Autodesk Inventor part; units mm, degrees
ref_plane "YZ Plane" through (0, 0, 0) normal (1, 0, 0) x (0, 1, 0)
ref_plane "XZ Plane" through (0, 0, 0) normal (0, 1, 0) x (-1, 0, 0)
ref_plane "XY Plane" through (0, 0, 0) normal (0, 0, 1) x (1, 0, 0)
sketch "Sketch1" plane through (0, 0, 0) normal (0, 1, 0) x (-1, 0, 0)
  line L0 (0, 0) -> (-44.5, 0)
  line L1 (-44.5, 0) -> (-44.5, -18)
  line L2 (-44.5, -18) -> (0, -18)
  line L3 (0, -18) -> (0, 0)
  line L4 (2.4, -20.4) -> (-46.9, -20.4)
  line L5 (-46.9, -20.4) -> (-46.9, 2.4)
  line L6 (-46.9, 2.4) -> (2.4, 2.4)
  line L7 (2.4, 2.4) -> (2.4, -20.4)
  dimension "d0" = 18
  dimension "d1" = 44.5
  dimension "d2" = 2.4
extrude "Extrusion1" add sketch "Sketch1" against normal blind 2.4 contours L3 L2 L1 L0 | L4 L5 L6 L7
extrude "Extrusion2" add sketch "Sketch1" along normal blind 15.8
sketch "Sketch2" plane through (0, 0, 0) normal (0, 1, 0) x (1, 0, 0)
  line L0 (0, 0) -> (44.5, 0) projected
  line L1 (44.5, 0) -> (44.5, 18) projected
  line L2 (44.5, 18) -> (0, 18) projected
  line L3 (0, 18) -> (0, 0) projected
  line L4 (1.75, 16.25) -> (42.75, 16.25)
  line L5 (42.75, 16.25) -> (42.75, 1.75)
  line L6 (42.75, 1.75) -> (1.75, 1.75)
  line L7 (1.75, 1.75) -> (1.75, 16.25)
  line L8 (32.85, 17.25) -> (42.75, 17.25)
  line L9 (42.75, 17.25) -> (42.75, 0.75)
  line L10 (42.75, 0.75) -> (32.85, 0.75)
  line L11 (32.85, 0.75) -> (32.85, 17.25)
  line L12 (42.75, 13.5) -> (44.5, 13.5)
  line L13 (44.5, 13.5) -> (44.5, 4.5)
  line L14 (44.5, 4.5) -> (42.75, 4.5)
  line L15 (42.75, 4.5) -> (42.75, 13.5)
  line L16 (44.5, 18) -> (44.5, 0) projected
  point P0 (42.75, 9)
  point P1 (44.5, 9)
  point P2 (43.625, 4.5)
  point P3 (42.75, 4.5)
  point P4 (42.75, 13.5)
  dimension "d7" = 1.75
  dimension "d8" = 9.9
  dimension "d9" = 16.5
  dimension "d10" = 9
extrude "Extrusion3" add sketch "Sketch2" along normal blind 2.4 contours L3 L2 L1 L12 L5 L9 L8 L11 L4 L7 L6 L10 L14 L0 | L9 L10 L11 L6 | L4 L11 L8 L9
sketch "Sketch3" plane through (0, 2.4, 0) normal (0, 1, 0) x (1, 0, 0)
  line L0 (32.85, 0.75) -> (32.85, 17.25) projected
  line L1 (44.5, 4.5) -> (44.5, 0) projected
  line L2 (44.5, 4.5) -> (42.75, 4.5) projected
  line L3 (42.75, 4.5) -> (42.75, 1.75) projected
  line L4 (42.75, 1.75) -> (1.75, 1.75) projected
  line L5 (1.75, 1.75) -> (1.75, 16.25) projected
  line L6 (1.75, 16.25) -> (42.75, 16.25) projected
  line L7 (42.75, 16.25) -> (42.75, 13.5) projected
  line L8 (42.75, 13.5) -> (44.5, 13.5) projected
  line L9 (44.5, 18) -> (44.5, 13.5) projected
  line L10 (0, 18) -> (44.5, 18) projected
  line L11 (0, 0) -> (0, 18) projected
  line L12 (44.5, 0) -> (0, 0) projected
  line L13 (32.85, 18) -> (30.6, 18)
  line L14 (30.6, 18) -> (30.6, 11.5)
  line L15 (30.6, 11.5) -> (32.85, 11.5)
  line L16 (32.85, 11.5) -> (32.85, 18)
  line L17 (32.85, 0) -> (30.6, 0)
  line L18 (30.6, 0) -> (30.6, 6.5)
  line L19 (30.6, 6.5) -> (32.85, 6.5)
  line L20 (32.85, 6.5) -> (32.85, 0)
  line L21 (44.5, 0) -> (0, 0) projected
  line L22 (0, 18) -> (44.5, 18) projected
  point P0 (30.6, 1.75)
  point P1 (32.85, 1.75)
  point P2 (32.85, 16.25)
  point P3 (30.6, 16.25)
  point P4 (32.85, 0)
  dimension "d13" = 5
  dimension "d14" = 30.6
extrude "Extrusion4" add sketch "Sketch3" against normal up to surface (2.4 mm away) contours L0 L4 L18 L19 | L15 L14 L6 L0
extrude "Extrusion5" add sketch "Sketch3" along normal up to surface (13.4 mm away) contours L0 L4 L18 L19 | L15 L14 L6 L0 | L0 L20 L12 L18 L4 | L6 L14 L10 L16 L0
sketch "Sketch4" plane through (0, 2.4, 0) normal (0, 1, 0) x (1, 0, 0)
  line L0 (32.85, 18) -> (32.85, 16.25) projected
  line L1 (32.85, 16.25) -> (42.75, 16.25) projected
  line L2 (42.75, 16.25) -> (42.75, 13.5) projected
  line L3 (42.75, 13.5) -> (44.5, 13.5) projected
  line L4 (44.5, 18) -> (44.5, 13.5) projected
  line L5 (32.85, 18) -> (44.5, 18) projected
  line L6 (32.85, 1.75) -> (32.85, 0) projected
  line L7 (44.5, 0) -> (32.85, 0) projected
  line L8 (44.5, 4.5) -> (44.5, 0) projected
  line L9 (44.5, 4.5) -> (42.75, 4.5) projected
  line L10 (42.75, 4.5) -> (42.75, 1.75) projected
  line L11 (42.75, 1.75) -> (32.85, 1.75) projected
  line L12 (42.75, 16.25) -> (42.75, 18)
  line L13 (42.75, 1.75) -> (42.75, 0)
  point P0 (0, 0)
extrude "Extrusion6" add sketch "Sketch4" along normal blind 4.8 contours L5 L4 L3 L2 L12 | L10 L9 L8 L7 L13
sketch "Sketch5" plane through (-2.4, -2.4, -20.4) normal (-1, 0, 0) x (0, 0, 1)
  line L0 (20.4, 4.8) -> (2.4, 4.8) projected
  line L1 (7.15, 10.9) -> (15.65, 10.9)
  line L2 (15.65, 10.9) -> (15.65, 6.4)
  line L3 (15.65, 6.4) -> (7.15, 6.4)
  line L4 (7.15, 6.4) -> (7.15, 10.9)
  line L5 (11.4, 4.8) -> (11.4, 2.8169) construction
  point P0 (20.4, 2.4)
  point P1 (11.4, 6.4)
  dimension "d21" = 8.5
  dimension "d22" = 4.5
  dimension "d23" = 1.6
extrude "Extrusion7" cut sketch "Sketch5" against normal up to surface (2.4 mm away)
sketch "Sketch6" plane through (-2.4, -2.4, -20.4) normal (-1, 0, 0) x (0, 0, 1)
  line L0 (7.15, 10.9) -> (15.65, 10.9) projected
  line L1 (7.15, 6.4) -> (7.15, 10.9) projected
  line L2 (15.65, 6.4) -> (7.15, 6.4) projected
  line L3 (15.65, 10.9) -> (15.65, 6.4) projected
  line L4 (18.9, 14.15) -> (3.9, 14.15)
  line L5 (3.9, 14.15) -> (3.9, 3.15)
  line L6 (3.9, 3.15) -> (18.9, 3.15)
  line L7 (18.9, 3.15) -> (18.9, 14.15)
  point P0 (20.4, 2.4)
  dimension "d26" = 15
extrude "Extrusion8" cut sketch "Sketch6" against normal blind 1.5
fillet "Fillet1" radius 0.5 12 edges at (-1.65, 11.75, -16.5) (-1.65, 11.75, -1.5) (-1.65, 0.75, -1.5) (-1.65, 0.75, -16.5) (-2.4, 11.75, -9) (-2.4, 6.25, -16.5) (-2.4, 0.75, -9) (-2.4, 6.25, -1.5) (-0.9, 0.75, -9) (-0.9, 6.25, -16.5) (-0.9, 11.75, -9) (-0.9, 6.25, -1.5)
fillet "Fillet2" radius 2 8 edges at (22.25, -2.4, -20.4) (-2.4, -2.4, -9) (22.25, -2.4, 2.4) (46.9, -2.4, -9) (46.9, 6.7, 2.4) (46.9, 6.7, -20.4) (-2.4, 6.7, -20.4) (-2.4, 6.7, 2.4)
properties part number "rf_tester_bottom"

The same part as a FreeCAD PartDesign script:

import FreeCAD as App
import Part
import Sketcher

V = App.Vector


def edges_at(feature, points):
    """Names of the edges that pass closest to the given points."""
    edges = feature.Shape.Edges
    near = lambda p: min(range(len(edges)), key=lambda i: edges[i].distToShape(Part.Vertex(*p))[0])
    return sorted({f"Edge{near(p) + 1}" for p in points})

doc = App.newDocument("Part")
body = doc.addObject("PartDesign::Body", "Body")

# Sketch on XZ plane
sketch1 = body.newObject("Sketcher::SketchObject", "Sketch")
sketch1.AttachmentSupport = (doc.getObject("XZ_Plane"), [""])
sketch1.MapMode = "FlatFace"
sketch1.addGeometry([
    Part.LineSegment(V(46.9, -20.4, 0), V(-2.4, -20.4, 0)),
    Part.LineSegment(V(-2.4, -20.4, 0), V(-2.4, 2.4, 0)),
    Part.LineSegment(V(-2.4, 2.4, 0), V(46.9, 2.4, 0)),
    Part.LineSegment(V(46.9, 2.4, 0), V(46.9, -20.4, 0)),
], False)
sketch1.addConstraint([
    Sketcher.Constraint("Coincident", 0, 2, 1, 1),
    Sketcher.Constraint("Coincident", 1, 2, 2, 1),
    Sketcher.Constraint("Coincident", 2, 2, 3, 1),
    Sketcher.Constraint("Coincident", 3, 2, 0, 1),
    Sketcher.Constraint("Horizontal", 0),
    Sketcher.Constraint("Vertical", 1),
    Sketcher.Constraint("Horizontal", 2),
    Sketcher.Constraint("Vertical", 3),
    Sketcher.Constraint("DistanceX", 0, 2, -1, 1, 2.4),
    Sketcher.Constraint("DistanceY", -1, 1, 1, 2, 2.4),
    Sketcher.Constraint("DistanceX", 0, 2, 0, 1, 49.3),
    Sketcher.Constraint("DistanceY", 1, 1, 1, 2, 22.8),
])
pad1 = body.newObject("PartDesign::Pad", "Pad")
pad1.Profile = sketch1
pad1.Length = 2.4

# Sketch on XZ plane
sketch2 = body.newObject("Sketcher::SketchObject", "Sketch001")
sketch2.AttachmentSupport = (doc.getObject("XZ_Plane"), [""])
sketch2.MapMode = "FlatFace"
sketch2.addGeometry([
    Part.LineSegment(V(46.9, -20.4, 0), V(-2.4, -20.4, 0)),  # 0
    Part.LineSegment(V(-2.4, -20.4, 0), V(-2.4, 2.4, 0)),  # 1
    Part.LineSegment(V(-2.4, 2.4, 0), V(46.9, 2.4, 0)),  # 2
    Part.LineSegment(V(46.9, 2.4, 0), V(46.9, -20.4, 0)),  # 3
    Part.LineSegment(V(44.5, 0, 0), V(0, 0, 0)),  # 4
    Part.LineSegment(V(0, 0, 0), V(0, -18, 0)),  # 5
    Part.LineSegment(V(0, -18, 0), V(44.5, -18, 0)),  # 6
    Part.LineSegment(V(44.5, -18, 0), V(44.5, 0, 0)),  # 7
], False)
sketch2.addConstraint([
    Sketcher.Constraint("Coincident", 0, 2, 1, 1),
    Sketcher.Constraint("Coincident", 1, 2, 2, 1),
    Sketcher.Constraint("Coincident", 2, 2, 3, 1),
    Sketcher.Constraint("Coincident", 3, 2, 0, 1),
    Sketcher.Constraint("Coincident", 4, 2, 5, 1),
    Sketcher.Constraint("Coincident", 5, 2, 6, 1),
    Sketcher.Constraint("Coincident", 6, 2, 7, 1),
    Sketcher.Constraint("Coincident", 7, 2, 4, 1),
    Sketcher.Constraint("Horizontal", 0),
    Sketcher.Constraint("Vertical", 1),
    Sketcher.Constraint("Horizontal", 2),
    Sketcher.Constraint("Vertical", 3),
    Sketcher.Constraint("Horizontal", 4),
    Sketcher.Constraint("Vertical", 5),
    Sketcher.Constraint("Horizontal", 6),
    Sketcher.Constraint("Vertical", 7),
    Sketcher.Constraint("Coincident", 4, 2, -1, 1),
    Sketcher.Constraint("DistanceY", 5, 2, 5, 1, 18.0),
    Sketcher.Constraint("DistanceX", 4, 2, 4, 1, 44.5),
    Sketcher.Constraint("DistanceX", 0, 2, -1, 1, 2.4),
    Sketcher.Constraint("DistanceY", -1, 1, 1, 2, 2.4),
    Sketcher.Constraint("DistanceY", 0, 2, 5, 2, 2.4),
    Sketcher.Constraint("DistanceX", 6, 2, 3, 2, 2.4),
])
pad2 = body.newObject("PartDesign::Pad", "Pad001")
pad2.Profile = sketch2
pad2.Length = 15.8
pad2.Reversed = True

# Sketch on XZ plane
sketch3 = body.newObject("Sketcher::SketchObject", "Sketch002")
sketch3.AttachmentSupport = (doc.getObject("XZ_Plane"), [""])
sketch3.MapMode = "FlatFace"
sketch3.addGeometry([
    Part.LineSegment(V(0, -18, 0), V(0, 0, 0)),  # 0
    Part.LineSegment(V(0, 0, 0), V(44.5, 0, 0)),  # 1
    Part.LineSegment(V(44.5, 0, 0), V(44.5, -4.5, 0)),  # 2
    Part.LineSegment(V(44.5, -4.5, 0), V(42.75, -4.5, 0)),  # 3
    Part.LineSegment(V(42.75, -4.5, 0), V(42.75, -1.75, 0)),  # 4
    Part.LineSegment(V(42.75, -1.75, 0), V(1.75, -1.75, 0)),  # 5
    Part.LineSegment(V(1.75, -1.75, 0), V(1.75, -16.25, 0)),  # 6
    Part.LineSegment(V(1.75, -16.25, 0), V(42.75, -16.25, 0)),  # 7
    Part.LineSegment(V(42.75, -16.25, 0), V(42.75, -13.5, 0)),  # 8
    Part.LineSegment(V(42.75, -13.5, 0), V(44.5, -13.5, 0)),  # 9
    Part.LineSegment(V(44.5, -13.5, 0), V(44.5, -18, 0)),  # 10
    Part.LineSegment(V(44.5, -18, 0), V(0, -18, 0)),  # 11
], False)
sketch3.addConstraint([
    Sketcher.Constraint("Coincident", 0, 2, 1, 1),
    Sketcher.Constraint("Coincident", 1, 2, 2, 1),
    Sketcher.Constraint("Coincident", 2, 2, 3, 1),
    Sketcher.Constraint("Coincident", 3, 2, 4, 1),
    Sketcher.Constraint("Coincident", 4, 2, 5, 1),
    Sketcher.Constraint("Coincident", 5, 2, 6, 1),
    Sketcher.Constraint("Coincident", 6, 2, 7, 1),
    Sketcher.Constraint("Coincident", 7, 2, 8, 1),
    Sketcher.Constraint("Coincident", 8, 2, 9, 1),
    Sketcher.Constraint("Coincident", 9, 2, 10, 1),
    Sketcher.Constraint("Coincident", 10, 2, 11, 1),
    Sketcher.Constraint("Coincident", 11, 2, 0, 1),
    Sketcher.Constraint("Vertical", 0),
    Sketcher.Constraint("Horizontal", 1),
    Sketcher.Constraint("Vertical", 2),
    Sketcher.Constraint("Horizontal", 3),
    Sketcher.Constraint("Vertical", 4),
    Sketcher.Constraint("Horizontal", 5),
    Sketcher.Constraint("Vertical", 6),
    Sketcher.Constraint("Horizontal", 7),
    Sketcher.Constraint("Vertical", 8),
    Sketcher.Constraint("Horizontal", 9),
    Sketcher.Constraint("Vertical", 10),
    Sketcher.Constraint("Horizontal", 11),
    Sketcher.Constraint("Coincident", 0, 2, -1, 1),
    Sketcher.Constraint("Vertical", 4, 2, 7, 2),
    Sketcher.Constraint("Vertical", 2, 2, 9, 2),
    Sketcher.Constraint("Equal", 4, 8),
    Sketcher.Constraint("Equal", 2, 10),
    Sketcher.Constraint("DistanceY", 8, 2, 3, 2, 9.0),
    Sketcher.Constraint("DistanceX", 3, 2, 3, 1, 1.75),
    Sketcher.Constraint("DistanceX", 5, 2, 5, 1, 41.0),
    Sketcher.Constraint("DistanceY", 0, 1, 0, 2, 18.0),
    Sketcher.Constraint("DistanceY", 4, 2, -1, 1, 1.75),
    Sketcher.Constraint("DistanceX", -1, 1, 5, 2, 1.75),
])
pad3 = body.newObject("PartDesign::Pad", "Pad002")
pad3.Profile = sketch3
pad3.Length = 2.4
pad3.Reversed = True

# Sketch on XZ plane
sketch4 = body.newObject("Sketcher::SketchObject", "Sketch003")
sketch4.AttachmentSupport = (doc.getObject("XZ_Plane"), [""])
sketch4.MapMode = "FlatFace"
sketch4.AttachmentOffset = App.Placement(V(0, 0, -2.4), App.Rotation())
sketch4.addGeometry([
    Part.LineSegment(V(32.85, -1.75, 0), V(32.85, -6.5, 0)),  # 0
    Part.LineSegment(V(32.85, -6.5, 0), V(30.6, -6.5, 0)),  # 1
    Part.LineSegment(V(30.6, -6.5, 0), V(30.6, -1.75, 0)),  # 2
    Part.LineSegment(V(30.6, -1.75, 0), V(32.85, -1.75, 0)),  # 3
    Part.LineSegment(V(30.6, -11.5, 0), V(32.85, -11.5, 0)),  # 4
    Part.LineSegment(V(32.85, -11.5, 0), V(32.85, -16.25, 0)),  # 5
    Part.LineSegment(V(32.85, -16.25, 0), V(30.6, -16.25, 0)),  # 6
    Part.LineSegment(V(30.6, -16.25, 0), V(30.6, -11.5, 0)),  # 7
], False)
sketch4.addConstraint([
    Sketcher.Constraint("Coincident", 0, 2, 1, 1),
    Sketcher.Constraint("Coincident", 1, 2, 2, 1),
    Sketcher.Constraint("Coincident", 2, 2, 3, 1),
    Sketcher.Constraint("Coincident", 3, 2, 0, 1),
    Sketcher.Constraint("Coincident", 4, 2, 5, 1),
    Sketcher.Constraint("Coincident", 5, 2, 6, 1),
    Sketcher.Constraint("Coincident", 6, 2, 7, 1),
    Sketcher.Constraint("Coincident", 7, 2, 4, 1),
    Sketcher.Constraint("Vertical", 0),
    Sketcher.Constraint("Horizontal", 1),
    Sketcher.Constraint("Vertical", 2),
    Sketcher.Constraint("Horizontal", 3),
    Sketcher.Constraint("Horizontal", 4),
    Sketcher.Constraint("Vertical", 5),
    Sketcher.Constraint("Horizontal", 6),
    Sketcher.Constraint("Vertical", 7),
    Sketcher.Constraint("Vertical", 3, 2, 4, 2),
    Sketcher.Constraint("Vertical", 2, 2, 6, 2),
    Sketcher.Constraint("Equal", 2, 5),
    Sketcher.Constraint("DistanceY", 4, 2, 0, 2, 5.0),
    Sketcher.Constraint("DistanceX", -1, 1, 1, 2, 30.6),
    Sketcher.Constraint("DistanceX", 1, 2, 1, 1, 2.25),
    Sketcher.Constraint("DistanceY", 0, 2, 0, 1, 4.75),
    Sketcher.Constraint("DistanceY", 0, 2, -1, 1, 6.5),
])
pad4 = body.newObject("PartDesign::Pad", "Pad003")
pad4.Profile = sketch4
pad4.Length = 2.4

# Sketch on XZ plane
sketch5 = body.newObject("Sketcher::SketchObject", "Sketch004")
sketch5.AttachmentSupport = (doc.getObject("XZ_Plane"), [""])
sketch5.MapMode = "FlatFace"
sketch5.AttachmentOffset = App.Placement(V(0, 0, -2.4), App.Rotation())
sketch5.addGeometry([
    Part.LineSegment(V(32.85, -6.5, 0), V(30.6, -6.5, 0)),  # 0
    Part.LineSegment(V(30.6, -6.5, 0), V(30.6, 0, 0)),  # 1
    Part.LineSegment(V(30.6, 0, 0), V(32.85, 0, 0)),  # 2
    Part.LineSegment(V(32.85, 0, 0), V(32.85, -6.5, 0)),  # 3
    Part.LineSegment(V(30.6, -11.5, 0), V(32.85, -11.5, 0)),  # 4
    Part.LineSegment(V(32.85, -11.5, 0), V(32.85, -18, 0)),  # 5
    Part.LineSegment(V(32.85, -18, 0), V(30.6, -18, 0)),  # 6
    Part.LineSegment(V(30.6, -18, 0), V(30.6, -11.5, 0)),  # 7
], False)
sketch5.addConstraint([
    Sketcher.Constraint("Coincident", 0, 2, 1, 1),
    Sketcher.Constraint("Coincident", 1, 2, 2, 1),
    Sketcher.Constraint("Coincident", 2, 2, 3, 1),
    Sketcher.Constraint("Coincident", 3, 2, 0, 1),
    Sketcher.Constraint("Coincident", 4, 2, 5, 1),
    Sketcher.Constraint("Coincident", 5, 2, 6, 1),
    Sketcher.Constraint("Coincident", 6, 2, 7, 1),
    Sketcher.Constraint("Coincident", 7, 2, 4, 1),
    Sketcher.Constraint("Horizontal", 0),
    Sketcher.Constraint("Vertical", 1),
    Sketcher.Constraint("Horizontal", 2),
    Sketcher.Constraint("Vertical", 3),
    Sketcher.Constraint("Horizontal", 4),
    Sketcher.Constraint("Vertical", 5),
    Sketcher.Constraint("Horizontal", 6),
    Sketcher.Constraint("Vertical", 7),
    Sketcher.Constraint("PointOnObject", 1, 2, -1),
    Sketcher.Constraint("Vertical", 3, 2, 4, 2),
    Sketcher.Constraint("Vertical", 1, 2, 6, 2),
    Sketcher.Constraint("Equal", 3, 5),
    Sketcher.Constraint("DistanceY", 4, 2, 3, 2, 5.0),
    Sketcher.Constraint("DistanceX", -1, 1, 0, 2, 30.6),
    Sketcher.Constraint("DistanceY", 1, 1, 1, 2, 6.5),
    Sketcher.Constraint("DistanceX", 0, 2, 0, 1, 2.25),
])
pad5 = body.newObject("PartDesign::Pad", "Pad004")
pad5.Profile = sketch5
pad5.Length = 13.4
pad5.Reversed = True

# Sketch on XZ plane
sketch6 = body.newObject("Sketcher::SketchObject", "Sketch005")
sketch6.AttachmentSupport = (doc.getObject("XZ_Plane"), [""])
sketch6.MapMode = "FlatFace"
sketch6.AttachmentOffset = App.Placement(V(0, 0, -2.4), App.Rotation())
sketch6.addGeometry([
    Part.LineSegment(V(44.5, -18, 0), V(42.75, -18, 0)),  # 0
    Part.LineSegment(V(42.75, -18, 0), V(42.75, -13.5, 0)),  # 1
    Part.LineSegment(V(42.75, -13.5, 0), V(44.5, -13.5, 0)),  # 2
    Part.LineSegment(V(44.5, -13.5, 0), V(44.5, -18, 0)),  # 3
    Part.LineSegment(V(42.75, -4.5, 0), V(42.75, 0, 0)),  # 4
    Part.LineSegment(V(42.75, 0, 0), V(44.5, 0, 0)),  # 5
    Part.LineSegment(V(44.5, 0, 0), V(44.5, -4.5, 0)),  # 6
    Part.LineSegment(V(44.5, -4.5, 0), V(42.75, -4.5, 0)),  # 7
], False)
sketch6.addConstraint([
    Sketcher.Constraint("Coincident", 0, 2, 1, 1),
    Sketcher.Constraint("Coincident", 1, 2, 2, 1),
    Sketcher.Constraint("Coincident", 2, 2, 3, 1),
    Sketcher.Constraint("Coincident", 3, 2, 0, 1),
    Sketcher.Constraint("Coincident", 4, 2, 5, 1),
    Sketcher.Constraint("Coincident", 5, 2, 6, 1),
    Sketcher.Constraint("Coincident", 6, 2, 7, 1),
    Sketcher.Constraint("Coincident", 7, 2, 4, 1),
    Sketcher.Constraint("Horizontal", 0),
    Sketcher.Constraint("Vertical", 1),
    Sketcher.Constraint("Horizontal", 2),
    Sketcher.Constraint("Vertical", 3),
    Sketcher.Constraint("Vertical", 4),
    Sketcher.Constraint("Horizontal", 5),
    Sketcher.Constraint("Vertical", 6),
    Sketcher.Constraint("Horizontal", 7),
    Sketcher.Constraint("PointOnObject", 4, 2, -1),
    Sketcher.Constraint("Vertical", 1, 2, 4, 2),
    Sketcher.Constraint("Vertical", 3, 2, 5, 2),
    Sketcher.Constraint("Equal", 3, 4),
    Sketcher.Constraint("DistanceY", 1, 1, 1, 2, 4.5),
    Sketcher.Constraint("DistanceY", 0, 2, -1, 1, 18.0),
    Sketcher.Constraint("DistanceX", 0, 2, 0, 1, 1.75),
    Sketcher.Constraint("DistanceX", -1, 1, 2, 2, 44.5),
])
pad6 = body.newObject("PartDesign::Pad", "Pad005")
pad6.Profile = sketch6
pad6.Length = 4.8
pad6.Reversed = True

# Sketch on YZ plane
sketch7 = body.newObject("Sketcher::SketchObject", "Sketch006")
sketch7.AttachmentSupport = (doc.getObject("YZ_Plane"), [""])
sketch7.MapMode = "FlatFace"
sketch7.AttachmentOffset = App.Placement(V(0, 0, -2.4), App.Rotation())
sketch7.addGeometry([
    Part.LineSegment(V(8.5, -4.75, 0), V(8.5, -13.25, 0)),
    Part.LineSegment(V(8.5, -13.25, 0), V(4, -13.25, 0)),
    Part.LineSegment(V(4, -13.25, 0), V(4, -4.75, 0)),
    Part.LineSegment(V(4, -4.75, 0), V(8.5, -4.75, 0)),
], False)
sketch7.addConstraint([
    Sketcher.Constraint("Coincident", 0, 2, 1, 1),
    Sketcher.Constraint("Coincident", 1, 2, 2, 1),
    Sketcher.Constraint("Coincident", 2, 2, 3, 1),
    Sketcher.Constraint("Coincident", 3, 2, 0, 1),
    Sketcher.Constraint("Vertical", 0),
    Sketcher.Constraint("Horizontal", 1),
    Sketcher.Constraint("Vertical", 2),
    Sketcher.Constraint("Horizontal", 3),
    Sketcher.Constraint("DistanceX", 1, 2, 1, 1, 4.5),
    Sketcher.Constraint("DistanceY", 0, 2, 0, 1, 8.5),
    Sketcher.Constraint("DistanceX", -1, 1, 0, 2, 8.5),
    Sketcher.Constraint("DistanceY", 0, 2, -1, 1, 13.25),
])
pocket1 = body.newObject("PartDesign::Pocket", "Pocket")
pocket1.Profile = sketch7
pocket1.Length = 2.4
pocket1.Reversed = True

# Sketch on YZ plane
sketch8 = body.newObject("Sketcher::SketchObject", "Sketch007")
sketch8.AttachmentSupport = (doc.getObject("YZ_Plane"), [""])
sketch8.MapMode = "FlatFace"
sketch8.AttachmentOffset = App.Placement(V(0, 0, -2.4), App.Rotation())
sketch8.addGeometry([
    Part.LineSegment(V(0.75, -1.5, 0), V(11.75, -1.5, 0)),  # 0
    Part.LineSegment(V(11.75, -1.5, 0), V(11.75, -16.5, 0)),  # 1
    Part.LineSegment(V(11.75, -16.5, 0), V(0.75, -16.5, 0)),  # 2
    Part.LineSegment(V(0.75, -16.5, 0), V(0.75, -1.5, 0)),  # 3
    Part.LineSegment(V(4, -13.25, 0), V(8.5, -13.25, 0)),  # 4
    Part.LineSegment(V(8.5, -13.25, 0), V(8.5, -4.75, 0)),  # 5
    Part.LineSegment(V(8.5, -4.75, 0), V(4, -4.75, 0)),  # 6
    Part.LineSegment(V(4, -4.75, 0), V(4, -13.25, 0)),  # 7
], False)
sketch8.addConstraint([
    Sketcher.Constraint("Coincident", 0, 2, 1, 1),
    Sketcher.Constraint("Coincident", 1, 2, 2, 1),
    Sketcher.Constraint("Coincident", 2, 2, 3, 1),
    Sketcher.Constraint("Coincident", 3, 2, 0, 1),
    Sketcher.Constraint("Coincident", 4, 2, 5, 1),
    Sketcher.Constraint("Coincident", 5, 2, 6, 1),
    Sketcher.Constraint("Coincident", 6, 2, 7, 1),
    Sketcher.Constraint("Coincident", 7, 2, 4, 1),
    Sketcher.Constraint("Horizontal", 0),
    Sketcher.Constraint("Vertical", 1),
    Sketcher.Constraint("Horizontal", 2),
    Sketcher.Constraint("Vertical", 3),
    Sketcher.Constraint("Horizontal", 4),
    Sketcher.Constraint("Vertical", 5),
    Sketcher.Constraint("Horizontal", 6),
    Sketcher.Constraint("Vertical", 7),
    Sketcher.Constraint("DistanceY", 1, 2, 1, 1, 15.0),
    Sketcher.Constraint("DistanceX", 0, 1, 0, 2, 11.0),
    Sketcher.Constraint("DistanceX", 4, 1, 4, 2, 4.5),
    Sketcher.Constraint("DistanceY", 5, 1, 5, 2, 8.5),
    Sketcher.Constraint("DistanceX", -1, 1, 6, 2, 4.0),
    Sketcher.Constraint("DistanceY", 0, 2, -1, 1, 1.5),
    Sketcher.Constraint("DistanceX", -1, 1, 0, 2, 11.75),
    Sketcher.Constraint("DistanceY", 4, 2, -1, 1, 13.25),
])
pocket2 = body.newObject("PartDesign::Pocket", "Pocket001")
pocket2.Profile = sketch8
pocket2.Length = 1.5
pocket2.Reversed = True
doc.recompute()

fillet = body.newObject("PartDesign::Fillet", "Fillet")
fillet.Base = (pocket2, edges_at(pocket2, [
    (-1.65, 11.75, -16.5),
    (-1.65, 11.75, -1.5),
    (-1.65, 0.75, -1.5),
    (-1.65, 0.75, -16.5),
    (-2.4, 11.75, -9),
    (-2.4, 6.25, -16.5),
    (-2.4, 0.75, -9),
    (-2.4, 6.25, -1.5),
    (-0.9, 0.75, -9),
    (-0.9, 6.25, -16.5),
    (-0.9, 11.75, -9),
    (-0.9, 6.25, -1.5),
]))
fillet.Radius = 0.5
doc.recompute()

fillet2 = body.newObject("PartDesign::Fillet", "Fillet001")
fillet2.Base = (fillet, edges_at(fillet, [
    (22.25, -2.4, -20.4),
    (-2.4, -2.4, -9),
    (22.25, -2.4, 2.4),
    (46.9, -2.4, -9),
    (46.9, 6.7, 2.4),
    (46.9, 6.7, -20.4),
    (-2.4, 6.7, -20.4),
    (-2.4, 6.7, 2.4),
]))
fillet2.Radius = 2

doc.recompute()
